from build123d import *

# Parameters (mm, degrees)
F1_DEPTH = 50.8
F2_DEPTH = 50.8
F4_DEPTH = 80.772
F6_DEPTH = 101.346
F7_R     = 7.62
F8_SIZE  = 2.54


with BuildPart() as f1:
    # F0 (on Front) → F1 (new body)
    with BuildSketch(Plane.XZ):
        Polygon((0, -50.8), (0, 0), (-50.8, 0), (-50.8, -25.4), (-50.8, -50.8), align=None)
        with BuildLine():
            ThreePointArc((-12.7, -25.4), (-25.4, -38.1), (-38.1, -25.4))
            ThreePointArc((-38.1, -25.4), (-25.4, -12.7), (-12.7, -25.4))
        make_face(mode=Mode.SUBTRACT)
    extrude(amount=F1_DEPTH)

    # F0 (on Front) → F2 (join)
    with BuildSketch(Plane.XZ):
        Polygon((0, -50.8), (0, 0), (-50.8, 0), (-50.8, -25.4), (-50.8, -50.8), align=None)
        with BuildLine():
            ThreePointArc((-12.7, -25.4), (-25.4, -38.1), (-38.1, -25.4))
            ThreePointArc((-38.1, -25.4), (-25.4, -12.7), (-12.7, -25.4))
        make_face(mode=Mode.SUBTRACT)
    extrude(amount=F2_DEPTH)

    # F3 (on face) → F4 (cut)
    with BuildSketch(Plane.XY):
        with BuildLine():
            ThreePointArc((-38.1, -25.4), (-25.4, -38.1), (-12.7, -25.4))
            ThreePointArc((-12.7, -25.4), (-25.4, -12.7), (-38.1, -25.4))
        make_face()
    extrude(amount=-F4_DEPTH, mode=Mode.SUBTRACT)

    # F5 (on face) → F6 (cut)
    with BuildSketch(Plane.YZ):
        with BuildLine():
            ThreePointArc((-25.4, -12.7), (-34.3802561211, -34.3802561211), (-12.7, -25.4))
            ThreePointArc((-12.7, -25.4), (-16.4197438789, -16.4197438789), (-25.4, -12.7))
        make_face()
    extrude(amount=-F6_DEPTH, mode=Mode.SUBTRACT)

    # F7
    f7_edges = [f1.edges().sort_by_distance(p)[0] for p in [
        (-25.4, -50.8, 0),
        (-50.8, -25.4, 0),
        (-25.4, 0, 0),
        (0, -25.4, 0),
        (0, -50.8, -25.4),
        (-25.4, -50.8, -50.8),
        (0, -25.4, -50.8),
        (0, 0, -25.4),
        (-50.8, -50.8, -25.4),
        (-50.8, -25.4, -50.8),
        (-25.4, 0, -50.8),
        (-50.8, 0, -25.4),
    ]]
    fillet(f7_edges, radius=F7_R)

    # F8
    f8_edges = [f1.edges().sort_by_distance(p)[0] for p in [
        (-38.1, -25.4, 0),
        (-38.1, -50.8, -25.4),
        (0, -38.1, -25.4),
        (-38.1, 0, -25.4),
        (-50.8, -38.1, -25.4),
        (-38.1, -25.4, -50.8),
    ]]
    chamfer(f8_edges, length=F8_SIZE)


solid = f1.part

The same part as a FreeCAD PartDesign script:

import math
import FreeCAD as App
import Part
import Sketcher
Q = App.Units.Quantity


def edges_at(feature, points):
    """Names of the edges that pass closest to the given points."""
    edges = feature.Shape.Edges
    near = lambda p: min(range(len(edges)), key=lambda i: edges[i].distToShape(Part.Vertex(*p))[0])
    return sorted({f"Edge{near(p) + 1}" for p in points})


def add_polygon(sketch, points):
    """Adds a closed chain of lines whose ends are joined by coincident constraints."""
    first, n = sketch.GeometryCount, len(points)
    for a, b in zip(points, points[1:] + points[:1]):
        sketch.addGeometry(Part.LineSegment(App.Vector(*a, 0), App.Vector(*b, 0)), False)
    for i in range(n):
        sketch.addConstraint(Sketcher.Constraint("Coincident", first + i, 2, first + (i + 1) % n, 1))

doc = App.newDocument("Part")
params = doc.addObject("Spreadsheet::Sheet", "Params")
for row, (alias, value) in enumerate([
    ("sketch1_diameter", "1 in"),
    ("sketch1_width", "2 in"),
    ("pad1_length", "2 in"),
    ("sketch2_diameter", "1 in"),
    ("sketch2_width", "2 in"),
    ("pad2_length", "2 in"),
    ("sketch3_diameter", "1 in"),
    ("pocket1_length", "3.18 in"),
    ("sketch4_radius", "0.5 in"),
    ("pocket2_length", "3.99 in"),
    ("fillet_radius", "0.3 in"),
    ("chamfer_size", "0.1 in"),
], start=1):
    params.set(f"A{row}", alias)
    params.set(f"B{row}", "=" + value)
    params.setAlias(f"B{row}", alias)

body = doc.addObject("PartDesign::Body", "Body")

# Sketch on XZ plane
sketch1 = body.newObject("Sketcher::SketchObject", "Sketch")
sketch1.AttachmentSupport = (doc.getObject("XZ_Plane"), [""])
sketch1.MapMode = "FlatFace"
add_polygon(sketch1, [(0, -50.8), (0, 0), (-50.8, 0), (-50.8, -50.8)])  # lines 0-3
sketch1.addGeometry(Part.Circle(App.Vector(-25.4, -25.4, 0), App.Vector(0, 0, 1), 12.7), False)  # 4
sketch1.addConstraint(Sketcher.Constraint("Vertical", 0))
sketch1.addConstraint(Sketcher.Constraint("Horizontal", 1))
sketch1.addConstraint(Sketcher.Constraint("Vertical", 2))
sketch1.addConstraint(Sketcher.Constraint("Horizontal", 3))
sketch1.addConstraint(Sketcher.Constraint("Coincident", 0, 2, -1, 1))
sketch1.addConstraint(Sketcher.Constraint("Equal", 3, 0))
sketch1.addConstraint(Sketcher.Constraint("Diameter", 4, Q("1 in")))
sketch1.addConstraint(Sketcher.Constraint("DistanceX", 1, 2, 1, 1, Q("2 in")))
sketch1.addConstraint(Sketcher.Constraint("DistanceX", 4, 3, -1, 1, Q("1 in")))
sketch1.addConstraint(Sketcher.Constraint("DistanceY", 4, 3, -1, 1, Q("1 in")))
sketch1.setExpression("Constraints[10]", "Params.sketch1_diameter")
sketch1.setExpression("Constraints[11]", "Params.sketch1_width")
pad1 = body.newObject("PartDesign::Pad", "Pad")
pad1.Profile = sketch1
pad1.setExpression("Length", "Params.pad1_length")

# Sketch on XZ plane
sketch2 = body.newObject("Sketcher::SketchObject", "Sketch001")
sketch2.AttachmentSupport = (doc.getObject("XZ_Plane"), [""])
sketch2.MapMode = "FlatFace"
add_polygon(sketch2, [(0, -50.8), (0, 0), (-50.8, 0), (-50.8, -50.8)])  # lines 0-3
sketch2.addGeometry(Part.Circle(App.Vector(-25.4, -25.4, 0), App.Vector(0, 0, 1), 12.7), False)  # 4
sketch2.addConstraint(Sketcher.Constraint("Vertical", 0))
sketch2.addConstraint(Sketcher.Constraint("Horizontal", 1))
sketch2.addConstraint(Sketcher.Constraint("Vertical", 2))
sketch2.addConstraint(Sketcher.Constraint("Horizontal", 3))
sketch2.addConstraint(Sketcher.Constraint("Coincident", 0, 2, -1, 1))
sketch2.addConstraint(Sketcher.Constraint("Equal", 3, 0))
sketch2.addConstraint(Sketcher.Constraint("Diameter", 4, Q("1 in")))
sketch2.addConstraint(Sketcher.Constraint("DistanceX", 1, 2, 1, 1, Q("2 in")))
sketch2.addConstraint(Sketcher.Constraint("DistanceX", 4, 3, -1, 1, Q("1 in")))
sketch2.addConstraint(Sketcher.Constraint("DistanceY", 4, 3, -1, 1, Q("1 in")))
sketch2.setExpression("Constraints[10]", "Params.sketch2_diameter")
sketch2.setExpression("Constraints[11]", "Params.sketch2_width")
pad2 = body.newObject("PartDesign::Pad", "Pad001")
pad2.Profile = sketch2
pad2.setExpression("Length", "Params.pad2_length")

# Sketch on XY plane
sketch3 = body.newObject("Sketcher::SketchObject", "Sketch002")
sketch3.AttachmentSupport = (doc.getObject("XY_Plane"), [""])
sketch3.MapMode = "FlatFace"
sketch3.addGeometry(Part.Circle(App.Vector(-25.4, -25.4, 0), App.Vector(0, 0, 1), 12.7), False)
sketch3.addConstraint(Sketcher.Constraint("Diameter", 0, Q("1 in")))
sketch3.addConstraint(Sketcher.Constraint("DistanceX", 0, 3, -1, 1, Q("1 in")))
sketch3.addConstraint(Sketcher.Constraint("DistanceY", 0, 3, -1, 1, Q("1 in")))
sketch3.setExpression("Constraints[0]", "Params.sketch3_diameter")
pocket1 = body.newObject("PartDesign::Pocket", "Pocket")
pocket1.Profile = sketch3
pocket1.setExpression("Length", "Params.pocket1_length")

# Sketch on YZ plane
sketch4 = body.newObject("Sketcher::SketchObject", "Sketch003")
sketch4.AttachmentSupport = (doc.getObject("YZ_Plane"), [""])
sketch4.MapMode = "FlatFace"
sketch4.addGeometry(Part.ArcOfCircle(Part.Circle(App.Vector(-25.4, -25.4, 0), App.Vector(0, 0, 1), 12.7), math.radians(90), math.radians(360)), False)
sketch4.addGeometry(Part.ArcOfCircle(Part.Circle(App.Vector(-25.4, -25.4, 0), App.Vector(0, 0, 1), 12.7), math.radians(0), math.radians(90)), False)
sketch4.addConstraint(Sketcher.Constraint("Tangent", 0, 1, 1, 2))
sketch4.addConstraint(Sketcher.Constraint("Coincident", 1, 1, 0, 2))
sketch4.addConstraint(Sketcher.Constraint("Horizontal", 0, 3, 1, 1))
sketch4.addConstraint(Sketcher.Constraint("Vertical", 1, 3, 0, 1))
sketch4.addConstraint(Sketcher.Constraint("Radius", 0, Q("0.5 in")))
sketch4.addConstraint(Sketcher.Constraint("DistanceX", 0, 3, -1, 1, Q("1 in")))
sketch4.addConstraint(Sketcher.Constraint("DistanceY", 0, 3, -1, 1, Q("1 in")))
sketch4.setExpression("Constraints[4]", "Params.sketch4_radius")
pocket2 = body.newObject("PartDesign::Pocket", "Pocket001")
pocket2.Profile = sketch4
pocket2.setExpression("Length", "Params.pocket2_length")
doc.recompute()

fillet = body.newObject("PartDesign::Fillet", "Fillet")
fillet.Base = (pocket2, edges_at(pocket2, [
    (-25.4, -50.8, 0),
    (-50.8, -25.4, 0),
    (-25.4, 0, 0),
    (0, -25.4, 0),
    (0, -50.8, -25.4),
    (-25.4, -50.8, -50.8),
    (0, -25.4, -50.8),
    (0, 0, -25.4),
    (-50.8, -50.8, -25.4),
    (-50.8, -25.4, -50.8),
    (-25.4, 0, -50.8),
    (-50.8, 0, -25.4),
]))
fillet.setExpression("Radius", "Params.fillet_radius")
doc.recompute()

chamfer = body.newObject("PartDesign::Chamfer", "Chamfer")
chamfer.Base = (fillet, edges_at(fillet, [
    (-38.1, -25.4, 0),
    (-12.7, -50.8, -25.4),
    (0, -34.38, -34.38),
    (-12.7, 0, -25.4),
    (-50.8, -34.38, -34.38),
    (-38.1, -25.4, -50.8),
]))
chamfer.setExpression("Size", "Params.chamfer_size")

doc.recompute()
